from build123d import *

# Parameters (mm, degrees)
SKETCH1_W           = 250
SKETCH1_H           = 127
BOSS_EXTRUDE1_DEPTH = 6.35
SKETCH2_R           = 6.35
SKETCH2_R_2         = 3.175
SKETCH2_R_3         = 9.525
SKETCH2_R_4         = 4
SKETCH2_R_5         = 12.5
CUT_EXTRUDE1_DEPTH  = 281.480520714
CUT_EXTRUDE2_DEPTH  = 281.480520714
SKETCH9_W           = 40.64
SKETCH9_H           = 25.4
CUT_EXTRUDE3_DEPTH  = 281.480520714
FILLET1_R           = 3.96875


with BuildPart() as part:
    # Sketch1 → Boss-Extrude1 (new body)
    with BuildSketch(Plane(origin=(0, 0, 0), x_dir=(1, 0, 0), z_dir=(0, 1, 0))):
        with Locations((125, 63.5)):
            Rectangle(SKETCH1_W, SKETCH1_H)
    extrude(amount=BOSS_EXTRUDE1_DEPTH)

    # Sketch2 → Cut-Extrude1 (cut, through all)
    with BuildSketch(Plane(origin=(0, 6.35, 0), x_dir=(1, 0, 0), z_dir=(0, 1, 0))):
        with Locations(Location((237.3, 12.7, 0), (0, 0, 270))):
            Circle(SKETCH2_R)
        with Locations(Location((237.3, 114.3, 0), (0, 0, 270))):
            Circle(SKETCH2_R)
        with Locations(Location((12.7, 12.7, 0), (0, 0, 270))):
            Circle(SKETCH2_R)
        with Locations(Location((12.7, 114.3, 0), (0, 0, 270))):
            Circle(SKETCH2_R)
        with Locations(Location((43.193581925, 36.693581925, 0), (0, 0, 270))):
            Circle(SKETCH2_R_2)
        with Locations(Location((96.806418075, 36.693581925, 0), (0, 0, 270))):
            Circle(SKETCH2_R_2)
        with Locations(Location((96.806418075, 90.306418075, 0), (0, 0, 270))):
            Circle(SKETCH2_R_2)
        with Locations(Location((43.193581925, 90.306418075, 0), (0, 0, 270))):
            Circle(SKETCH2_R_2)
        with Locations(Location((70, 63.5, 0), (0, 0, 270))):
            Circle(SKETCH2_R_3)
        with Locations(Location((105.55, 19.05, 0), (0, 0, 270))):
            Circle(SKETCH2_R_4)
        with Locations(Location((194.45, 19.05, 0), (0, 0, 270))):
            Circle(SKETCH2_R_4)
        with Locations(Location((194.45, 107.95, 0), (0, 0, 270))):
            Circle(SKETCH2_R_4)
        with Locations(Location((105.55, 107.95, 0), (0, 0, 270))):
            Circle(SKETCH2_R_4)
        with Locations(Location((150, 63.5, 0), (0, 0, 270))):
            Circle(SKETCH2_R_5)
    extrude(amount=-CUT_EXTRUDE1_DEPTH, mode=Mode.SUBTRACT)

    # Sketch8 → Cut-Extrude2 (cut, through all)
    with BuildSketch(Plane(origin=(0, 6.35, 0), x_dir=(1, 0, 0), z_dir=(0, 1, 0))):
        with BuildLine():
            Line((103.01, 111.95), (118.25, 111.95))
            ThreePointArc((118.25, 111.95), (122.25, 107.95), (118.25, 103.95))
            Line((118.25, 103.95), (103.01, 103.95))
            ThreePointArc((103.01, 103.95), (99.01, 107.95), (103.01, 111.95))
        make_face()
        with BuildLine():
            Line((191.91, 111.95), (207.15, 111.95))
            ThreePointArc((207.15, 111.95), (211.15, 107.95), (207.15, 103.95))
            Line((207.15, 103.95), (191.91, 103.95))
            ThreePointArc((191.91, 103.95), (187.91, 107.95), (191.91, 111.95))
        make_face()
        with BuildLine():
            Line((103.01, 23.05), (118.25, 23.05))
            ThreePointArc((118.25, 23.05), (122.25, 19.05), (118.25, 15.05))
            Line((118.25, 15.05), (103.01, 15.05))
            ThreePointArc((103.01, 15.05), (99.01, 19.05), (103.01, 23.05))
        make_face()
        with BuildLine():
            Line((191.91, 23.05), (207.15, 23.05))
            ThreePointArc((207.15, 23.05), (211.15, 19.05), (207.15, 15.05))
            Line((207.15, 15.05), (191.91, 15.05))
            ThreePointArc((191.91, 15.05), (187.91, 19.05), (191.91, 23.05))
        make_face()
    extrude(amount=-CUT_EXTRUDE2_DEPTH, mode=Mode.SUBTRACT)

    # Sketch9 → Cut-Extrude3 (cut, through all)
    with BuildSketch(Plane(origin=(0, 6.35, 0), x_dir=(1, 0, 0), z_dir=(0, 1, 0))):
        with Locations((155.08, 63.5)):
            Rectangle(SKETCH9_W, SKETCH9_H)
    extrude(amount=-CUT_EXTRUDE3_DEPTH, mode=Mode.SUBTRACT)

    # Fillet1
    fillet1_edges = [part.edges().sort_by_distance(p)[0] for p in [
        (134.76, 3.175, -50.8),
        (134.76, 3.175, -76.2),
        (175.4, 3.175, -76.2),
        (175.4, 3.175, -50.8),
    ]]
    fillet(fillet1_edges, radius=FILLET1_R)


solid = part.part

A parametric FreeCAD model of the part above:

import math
import FreeCAD as App
import Part
import Sketcher
Q = App.Units.Quantity


def edges_at(feature, points):
    """Names of the edges that pass closest to the given points."""
    edges = feature.Shape.Edges
    near = lambda p: min(range(len(edges)), key=lambda i: edges[i].distToShape(Part.Vertex(*p))[0])
    return sorted({f"Edge{near(p) + 1}" for p in points})

doc = App.newDocument("Part")
body = doc.addObject("PartDesign::Body", "Body")

# Sketch on XZ plane
sketch1 = body.newObject("Sketcher::SketchObject", "Sketch")
sketch1.AttachmentSupport = (doc.getObject("XZ_Plane"), [""])
sketch1.MapMode = "FlatFace"
sketch1.addGeometry(Part.LineSegment(App.Vector(0, -127, 0), App.Vector(0, 0, 0)), False)
sketch1.addGeometry(Part.LineSegment(App.Vector(0, 0, 0), App.Vector(250, 0, 0)), False)
sketch1.addGeometry(Part.LineSegment(App.Vector(250, 0, 0), App.Vector(250, -127, 0)), False)
sketch1.addGeometry(Part.LineSegment(App.Vector(250, -127, 0), App.Vector(0, -127, 0)), False)
sketch1.addConstraint(Sketcher.Constraint("Coincident", 0, 2, 1, 1))
sketch1.addConstraint(Sketcher.Constraint("Coincident", 1, 2, 2, 1))
sketch1.addConstraint(Sketcher.Constraint("Coincident", 2, 2, 3, 1))
sketch1.addConstraint(Sketcher.Constraint("Coincident", 3, 2, 0, 1))
sketch1.addConstraint(Sketcher.Constraint("Vertical", 0))
sketch1.addConstraint(Sketcher.Constraint("Horizontal", 1))
sketch1.addConstraint(Sketcher.Constraint("Vertical", 2))
sketch1.addConstraint(Sketcher.Constraint("Horizontal", 3))
sketch1.addConstraint(Sketcher.Constraint("Coincident", 0, 2, -1, 1))
sketch1.addConstraint(Sketcher.Constraint("DistanceY", 0, 1, 0, 2, Q("5 in")))
sketch1.addConstraint(Sketcher.Constraint("DistanceX", 1, 1, 1, 2, 250.0))
pad1 = body.newObject("PartDesign::Pad", "Pad")
pad1.Profile = sketch1
pad1.Length = Q("0.25 in")
pad1.Reversed = True

# Sketch on XZ plane
sketch2 = body.newObject("Sketcher::SketchObject", "Sketch001")
sketch2.AttachmentSupport = (doc.getObject("XZ_Plane"), [""])
sketch2.MapMode = "FlatFace"
sketch2.AttachmentOffset = App.Placement(App.Vector(0, 0, -0.25 * 25.4), App.Rotation())
sketch2.addGeometry(Part.Circle(App.Vector(237.3, -12.7, 0), App.Vector(0, 0, 1), 6.35), False)
sketch2.addGeometry(Part.Circle(App.Vector(237.3, -114.3, 0), App.Vector(0, 0, 1), 6.35), False)
sketch2.addGeometry(Part.Circle(App.Vector(12.7, -12.7, 0), App.Vector(0, 0, 1), 6.35), False)
sketch2.addGeometry(Part.Circle(App.Vector(12.7, -114.3, 0), App.Vector(0, 0, 1), 6.35), False)
sketch2.addGeometry(Part.Circle(App.Vector(43.193582, -36.693582, 0), App.Vector(0, 0, 1), 3.175), False)
sketch2.addGeometry(Part.Circle(App.Vector(96.806418, -36.693582, 0), App.Vector(0, 0, 1), 3.175), False)
sketch2.addGeometry(Part.Circle(App.Vector(96.806418, -90.306418, 0), App.Vector(0, 0, 1), 3.175), False)
sketch2.addGeometry(Part.Circle(App.Vector(43.193582, -90.306418, 0), App.Vector(0, 0, 1), 3.175), False)
sketch2.addGeometry(Part.Circle(App.Vector(70, -63.5, 0), App.Vector(0, 0, 1), 9.525), False)
sketch2.addGeometry(Part.Circle(App.Vector(105.55, -19.05, 0), App.Vector(0, 0, 1), 4), False)
sketch2.addGeometry(Part.Circle(App.Vector(194.45, -19.05, 0), App.Vector(0, 0, 1), 4), False)
sketch2.addGeometry(Part.Circle(App.Vector(194.45, -107.95, 0), App.Vector(0, 0, 1), 4), False)
sketch2.addGeometry(Part.Circle(App.Vector(105.55, -107.95, 0), App.Vector(0, 0, 1), 4), False)
sketch2.addGeometry(Part.Circle(App.Vector(150, -63.5, 0), App.Vector(0, 0, 1), 12.5), False)
sketch2.addConstraint(Sketcher.Constraint("Equal", 0, 1))
sketch2.addConstraint(Sketcher.Constraint("Equal", 1, 2))
sketch2.addConstraint(Sketcher.Constraint("Equal", 2, 3))
sketch2.addConstraint(Sketcher.Constraint("Equal", 4, 5))
sketch2.addConstraint(Sketcher.Constraint("Equal", 5, 6))
sketch2.addConstraint(Sketcher.Constraint("Equal", 6, 7))
sketch2.addConstraint(Sketcher.Constraint("Equal", 9, 10))
sketch2.addConstraint(Sketcher.Constraint("Equal", 10, 11))
sketch2.addConstraint(Sketcher.Constraint("Equal", 11, 12))
sketch2.addConstraint(Sketcher.Constraint("Horizontal", 0, 3, 2, 3))
sketch2.addConstraint(Sketcher.Constraint("Horizontal", 1, 3, 3, 3))
sketch2.addConstraint(Sketcher.Constraint("Horizontal", 4, 3, 5, 3))
sketch2.addConstraint(Sketcher.Constraint("Horizontal", 6, 3, 7, 3))
sketch2.addConstraint(Sketcher.Constraint("Horizontal", 9, 3, 10, 3))
sketch2.addConstraint(Sketcher.Constraint("Horizontal", 11, 3, 12, 3))
sketch2.addConstraint(Sketcher.Constraint("Horizontal", 8, 3, 13, 3))
sketch2.addConstraint(Sketcher.Constraint("Vertical", 0, 3, 1, 3))
sketch2.addConstraint(Sketcher.Constraint("Vertical", 2, 3, 3, 3))
sketch2.addConstraint(Sketcher.Constraint("Vertical", 5, 3, 6, 3))
sketch2.addConstraint(Sketcher.Constraint("Vertical", 4, 3, 7, 3))
sketch2.addConstraint(Sketcher.Constraint("Vertical", 10, 3, 11, 3))
sketch2.addConstraint(Sketcher.Constraint("Vertical", 9, 3, 12, 3))
sketch2.addConstraint(Sketcher.Constraint("Diameter", 0, Q("0.5 in")))
sketch2.addConstraint(Sketcher.Constraint("Diameter", 4, Q("0.25 in")))
sketch2.addConstraint(Sketcher.Constraint("Diameter", 8, Q("0.75 in")))
sketch2.addConstraint(Sketcher.Constraint("DistanceY", 1, 3, 0, 3, Q("4 in")))
sketch2.addConstraint(Sketcher.Constraint("DistanceY", 8, 3, 2, 3, Q("2 in")))
sketch2.addConstraint(Sketcher.Constraint("DistanceY", 0, 3, -1, 1, Q("0.5 in")))
sketch2.addConstraint(Sketcher.Constraint("DistanceX", -1, 1, 2, 3, Q("0.5 in")))
sketch2.addConstraint(Sketcher.Constraint("DistanceX", 9, 3, 10, 3, Q("3.5 in")))
sketch2.addConstraint(Sketcher.Constraint("DistanceY", 11, 3, 10, 3, Q("3.5 in")))
sketch2.addConstraint(Sketcher.Constraint("Diameter", 9, 8.0))
sketch2.addConstraint(Sketcher.Constraint("Diameter", 13, 25.0))
sketch2.addConstraint(Sketcher.Constraint("DistanceY", 9, 3, -1, 1, Q("0.75 in")))
sketch2.addConstraint(Sketcher.Constraint("DistanceX", 13, 3, 10, 3, Q("1.75 in")))
sketch2.addConstraint(Sketcher.Constraint("DistanceX", -1, 1, 0, 3, 237.3))
sketch2.addConstraint(Sketcher.Constraint("DistanceX", -1, 1, 8, 3, 70.0))
sketch2.addConstraint(Sketcher.Constraint("DistanceX", -1, 1, 9, 3, 105.55))
sketch2.addConstraint(Sketcher.Constraint("DistanceX", -1, 1, 4, 3, 43.193582))
sketch2.addConstraint(Sketcher.Constraint("DistanceY", 4, 3, -1, 1, 36.693582))
sketch2.addConstraint(Sketcher.Constraint("DistanceX", -1, 1, 5, 3, 96.806418))
sketch2.addConstraint(Sketcher.Constraint("DistanceY", 6, 3, -1, 1, 90.306418))
pocket1 = body.newObject("PartDesign::Pocket", "Pocket")
pocket1.Profile = sketch2
pocket1.Type = "ThroughAll"
pocket1.Reversed = True

# Sketch on XZ plane
sketch3 = body.newObject("Sketcher::SketchObject", "Sketch002")
sketch3.AttachmentSupport = (doc.getObject("XZ_Plane"), [""])
sketch3.MapMode = "FlatFace"
sketch3.AttachmentOffset = App.Placement(App.Vector(0, 0, -0.25 * 25.4), App.Rotation())
sketch3.addGeometry(Part.LineSegment(App.Vector(118.25, -111.95, 0), App.Vector(103.01, -111.95, 0)), False)
sketch3.addGeometry(Part.ArcOfCircle(Part.Circle(App.Vector(103.01, -107.95, 0), App.Vector(0, 0, 1), 4), math.radians(90), math.radians(270)), False)
sketch3.addGeometry(Part.LineSegment(App.Vector(103.01, -103.95, 0), App.Vector(118.25, -103.95, 0)), False)
sketch3.addGeometry(Part.ArcOfCircle(Part.Circle(App.Vector(118.25, -107.95, 0), App.Vector(0, 0, 1), 4), math.radians(-90), math.radians(90)), False)
sketch3.addGeometry(Part.LineSegment(App.Vector(207.15, -111.95, 0), App.Vector(191.91, -111.95, 0)), False)
sketch3.addGeometry(Part.ArcOfCircle(Part.Circle(App.Vector(191.91, -107.95, 0), App.Vector(0, 0, 1), 4), math.radians(90), math.radians(270)), False)
sketch3.addGeometry(Part.LineSegment(App.Vector(191.91, -103.95, 0), App.Vector(207.15, -103.95, 0)), False)
sketch3.addGeometry(Part.ArcOfCircle(Part.Circle(App.Vector(207.15, -107.95, 0), App.Vector(0, 0, 1), 4), math.radians(-90), math.radians(90)), False)
sketch3.addGeometry(Part.LineSegment(App.Vector(118.25, -23.05, 0), App.Vector(103.01, -23.05, 0)), False)
sketch3.addGeometry(Part.ArcOfCircle(Part.Circle(App.Vector(103.01, -19.05, 0), App.Vector(0, 0, 1), 4), math.radians(90), math.radians(270)), False)
sketch3.addGeometry(Part.LineSegment(App.Vector(103.01, -15.05, 0), App.Vector(118.25, -15.05, 0)), False)
sketch3.addGeometry(Part.ArcOfCircle(Part.Circle(App.Vector(118.25, -19.05, 0), App.Vector(0, 0, 1), 4), math.radians(-90), math.radians(90)), False)
sketch3.addGeometry(Part.LineSegment(App.Vector(207.15, -23.05, 0), App.Vector(191.91, -23.05, 0)), False)
sketch3.addGeometry(Part.ArcOfCircle(Part.Circle(App.Vector(191.91, -19.05, 0), App.Vector(0, 0, 1), 4), math.radians(90), math.radians(270)), False)
sketch3.addGeometry(Part.LineSegment(App.Vector(191.91, -15.05, 0), App.Vector(207.15, -15.05, 0)), False)
sketch3.addGeometry(Part.ArcOfCircle(Part.Circle(App.Vector(207.15, -19.05, 0), App.Vector(0, 0, 1), 4), math.radians(-90), math.radians(90)), False)
sketch3.addConstraint(Sketcher.Constraint("Tangent", 0, 2, 1, 2))
sketch3.addConstraint(Sketcher.Constraint("Tangent", 1, 1, 2, 1))
sketch3.addConstraint(Sketcher.Constraint("Tangent", 2, 2, 3, 2))
sketch3.addConstraint(Sketcher.Constraint("Tangent", 3, 1, 0, 1))
sketch3.addConstraint(Sketcher.Constraint("Tangent", 4, 2, 5, 2))
sketch3.addConstraint(Sketcher.Constraint("Tangent", 5, 1, 6, 1))
sketch3.addConstraint(Sketcher.Constraint("Tangent", 6, 2, 7, 2))
sketch3.addConstraint(Sketcher.Constraint("Tangent", 7, 1, 4, 1))
sketch3.addConstraint(Sketcher.Constraint("Tangent", 8, 2, 9, 2))
sketch3.addConstraint(Sketcher.Constraint("Tangent", 9, 1, 10, 1))
sketch3.addConstraint(Sketcher.Constraint("Tangent", 10, 2, 11, 2))
sketch3.addConstraint(Sketcher.Constraint("Tangent", 11, 1, 8, 1))
sketch3.addConstraint(Sketcher.Constraint("Tangent", 12, 2, 13, 2))
sketch3.addConstraint(Sketcher.Constraint("Tangent", 13, 1, 14, 1))
sketch3.addConstraint(Sketcher.Constraint("Tangent", 14, 2, 15, 2))
sketch3.addConstraint(Sketcher.Constraint("Tangent", 15, 1, 12, 1))
sketch3.addConstraint(Sketcher.Constraint("Horizontal", 0))
sketch3.addConstraint(Sketcher.Constraint("Horizontal", 2))
sketch3.addConstraint(Sketcher.Constraint("Horizontal", 4))
sketch3.addConstraint(Sketcher.Constraint("Horizontal", 6))
sketch3.addConstraint(Sketcher.Constraint("Horizontal", 8))
sketch3.addConstraint(Sketcher.Constraint("Horizontal", 10))
sketch3.addConstraint(Sketcher.Constraint("Horizontal", 12))
sketch3.addConstraint(Sketcher.Constraint("Horizontal", 14))
sketch3.addConstraint(Sketcher.Constraint("Equal", 3, 5))
sketch3.addConstraint(Sketcher.Constraint("Equal", 7, 9))
sketch3.addConstraint(Sketcher.Constraint("Equal", 11, 13))
sketch3.addConstraint(Sketcher.Constraint("Horizontal", 3, 3, 5, 3))
sketch3.addConstraint(Sketcher.Constraint("Horizontal", 11, 3, 13, 3))
sketch3.addConstraint(Sketcher.Constraint("Vertical", 1, 3, 9, 3))
sketch3.addConstraint(Sketcher.Constraint("Vertical", 3, 3, 11, 3))
sketch3.addConstraint(Sketcher.Constraint("Vertical", 5, 3, 13, 3))
sketch3.addConstraint(Sketcher.Constraint("Vertical", 7, 3, 15, 3))
sketch3.addConstraint(Sketcher.Constraint("Equal", 2, 4))
sketch3.addConstraint(Sketcher.Constraint("DistanceX", 0, 2, 0, 1, Q("0.6 in")))
sketch3.addConstraint(Sketcher.Constraint("DistanceX", 3, 3, 5, 3, Q("2.9 in")))
sketch3.addConstraint(Sketcher.Constraint("DistanceY", 1, 3, 9, 3, Q("3.5 in")))
sketch3.addConstraint(Sketcher.Constraint("DistanceY", 1, 3, -1, 1, Q("4.25 in")))
sketch3.addConstraint(Sketcher.Constraint("Radius", 1, 4.0))
sketch3.addConstraint(Sketcher.Constraint("DistanceX", -1, 1, 1, 3, 103.01))
pocket2 = body.newObject("PartDesign::Pocket", "Pocket001")
pocket2.Profile = sketch3
pocket2.Type = "ThroughAll"
pocket2.Reversed = True

# Sketch on XZ plane
sketch4 = body.newObject("Sketcher::SketchObject", "Sketch003")
sketch4.AttachmentSupport = (doc.getObject("XZ_Plane"), [""])
sketch4.MapMode = "FlatFace"
sketch4.AttachmentOffset = App.Placement(App.Vector(0, 0, -0.25 * 25.4), App.Rotation())
sketch4.addGeometry(Part.LineSegment(App.Vector(134.76, -76.2, 0), App.Vector(134.76, -50.8, 0)), False)
sketch4.addGeometry(Part.LineSegment(App.Vector(134.76, -50.8, 0), App.Vector(175.4, -50.8, 0)), False)
sketch4.addGeometry(Part.LineSegment(App.Vector(175.4, -50.8, 0), App.Vector(175.4, -76.2, 0)), False)
sketch4.addGeometry(Part.LineSegment(App.Vector(175.4, -76.2, 0), App.Vector(134.76, -76.2, 0)), False)
sketch4.addConstraint(Sketcher.Constraint("Coincident", 0, 2, 1, 1))
sketch4.addConstraint(Sketcher.Constraint("Coincident", 1, 2, 2, 1))
sketch4.addConstraint(Sketcher.Constraint("Coincident", 2, 2, 3, 1))
sketch4.addConstraint(Sketcher.Constraint("Coincident", 3, 2, 0, 1))
sketch4.addConstraint(Sketcher.Constraint("Vertical", 0))
sketch4.addConstraint(Sketcher.Constraint("Horizontal", 1))
sketch4.addConstraint(Sketcher.Constraint("Vertical", 2))
sketch4.addConstraint(Sketcher.Constraint("Horizontal", 3))
sketch4.addConstraint(Sketcher.Constraint("DistanceY", 0, 1, 0, 2, Q("1 in")))
sketch4.addConstraint(Sketcher.Constraint("DistanceX", 1, 1, 1, 2, Q("1.6 in")))
sketch4.addConstraint(Sketcher.Constraint("DistanceY", 0, 2, -1, 1, Q("2 in")))
sketch4.addConstraint(Sketcher.Constraint("DistanceX", -1, 1, 0, 2, 134.76))
pocket3 = body.newObject("PartDesign::Pocket", "Pocket002")
pocket3.Profile = sketch4
pocket3.Type = "ThroughAll"
pocket3.Reversed = True
doc.recompute()

fillet = body.newObject("PartDesign::Fillet", "Fillet")
fillet.Base = (pocket3, edges_at(pocket3, [
    (134.76, 3.175, -50.8),
    (134.76, 3.175, -76.2),
    (175.4, 3.175, -76.2),
    (175.4, 3.175, -50.8),
]))
fillet.Radius = Q("0.15625 in")

doc.recompute()
